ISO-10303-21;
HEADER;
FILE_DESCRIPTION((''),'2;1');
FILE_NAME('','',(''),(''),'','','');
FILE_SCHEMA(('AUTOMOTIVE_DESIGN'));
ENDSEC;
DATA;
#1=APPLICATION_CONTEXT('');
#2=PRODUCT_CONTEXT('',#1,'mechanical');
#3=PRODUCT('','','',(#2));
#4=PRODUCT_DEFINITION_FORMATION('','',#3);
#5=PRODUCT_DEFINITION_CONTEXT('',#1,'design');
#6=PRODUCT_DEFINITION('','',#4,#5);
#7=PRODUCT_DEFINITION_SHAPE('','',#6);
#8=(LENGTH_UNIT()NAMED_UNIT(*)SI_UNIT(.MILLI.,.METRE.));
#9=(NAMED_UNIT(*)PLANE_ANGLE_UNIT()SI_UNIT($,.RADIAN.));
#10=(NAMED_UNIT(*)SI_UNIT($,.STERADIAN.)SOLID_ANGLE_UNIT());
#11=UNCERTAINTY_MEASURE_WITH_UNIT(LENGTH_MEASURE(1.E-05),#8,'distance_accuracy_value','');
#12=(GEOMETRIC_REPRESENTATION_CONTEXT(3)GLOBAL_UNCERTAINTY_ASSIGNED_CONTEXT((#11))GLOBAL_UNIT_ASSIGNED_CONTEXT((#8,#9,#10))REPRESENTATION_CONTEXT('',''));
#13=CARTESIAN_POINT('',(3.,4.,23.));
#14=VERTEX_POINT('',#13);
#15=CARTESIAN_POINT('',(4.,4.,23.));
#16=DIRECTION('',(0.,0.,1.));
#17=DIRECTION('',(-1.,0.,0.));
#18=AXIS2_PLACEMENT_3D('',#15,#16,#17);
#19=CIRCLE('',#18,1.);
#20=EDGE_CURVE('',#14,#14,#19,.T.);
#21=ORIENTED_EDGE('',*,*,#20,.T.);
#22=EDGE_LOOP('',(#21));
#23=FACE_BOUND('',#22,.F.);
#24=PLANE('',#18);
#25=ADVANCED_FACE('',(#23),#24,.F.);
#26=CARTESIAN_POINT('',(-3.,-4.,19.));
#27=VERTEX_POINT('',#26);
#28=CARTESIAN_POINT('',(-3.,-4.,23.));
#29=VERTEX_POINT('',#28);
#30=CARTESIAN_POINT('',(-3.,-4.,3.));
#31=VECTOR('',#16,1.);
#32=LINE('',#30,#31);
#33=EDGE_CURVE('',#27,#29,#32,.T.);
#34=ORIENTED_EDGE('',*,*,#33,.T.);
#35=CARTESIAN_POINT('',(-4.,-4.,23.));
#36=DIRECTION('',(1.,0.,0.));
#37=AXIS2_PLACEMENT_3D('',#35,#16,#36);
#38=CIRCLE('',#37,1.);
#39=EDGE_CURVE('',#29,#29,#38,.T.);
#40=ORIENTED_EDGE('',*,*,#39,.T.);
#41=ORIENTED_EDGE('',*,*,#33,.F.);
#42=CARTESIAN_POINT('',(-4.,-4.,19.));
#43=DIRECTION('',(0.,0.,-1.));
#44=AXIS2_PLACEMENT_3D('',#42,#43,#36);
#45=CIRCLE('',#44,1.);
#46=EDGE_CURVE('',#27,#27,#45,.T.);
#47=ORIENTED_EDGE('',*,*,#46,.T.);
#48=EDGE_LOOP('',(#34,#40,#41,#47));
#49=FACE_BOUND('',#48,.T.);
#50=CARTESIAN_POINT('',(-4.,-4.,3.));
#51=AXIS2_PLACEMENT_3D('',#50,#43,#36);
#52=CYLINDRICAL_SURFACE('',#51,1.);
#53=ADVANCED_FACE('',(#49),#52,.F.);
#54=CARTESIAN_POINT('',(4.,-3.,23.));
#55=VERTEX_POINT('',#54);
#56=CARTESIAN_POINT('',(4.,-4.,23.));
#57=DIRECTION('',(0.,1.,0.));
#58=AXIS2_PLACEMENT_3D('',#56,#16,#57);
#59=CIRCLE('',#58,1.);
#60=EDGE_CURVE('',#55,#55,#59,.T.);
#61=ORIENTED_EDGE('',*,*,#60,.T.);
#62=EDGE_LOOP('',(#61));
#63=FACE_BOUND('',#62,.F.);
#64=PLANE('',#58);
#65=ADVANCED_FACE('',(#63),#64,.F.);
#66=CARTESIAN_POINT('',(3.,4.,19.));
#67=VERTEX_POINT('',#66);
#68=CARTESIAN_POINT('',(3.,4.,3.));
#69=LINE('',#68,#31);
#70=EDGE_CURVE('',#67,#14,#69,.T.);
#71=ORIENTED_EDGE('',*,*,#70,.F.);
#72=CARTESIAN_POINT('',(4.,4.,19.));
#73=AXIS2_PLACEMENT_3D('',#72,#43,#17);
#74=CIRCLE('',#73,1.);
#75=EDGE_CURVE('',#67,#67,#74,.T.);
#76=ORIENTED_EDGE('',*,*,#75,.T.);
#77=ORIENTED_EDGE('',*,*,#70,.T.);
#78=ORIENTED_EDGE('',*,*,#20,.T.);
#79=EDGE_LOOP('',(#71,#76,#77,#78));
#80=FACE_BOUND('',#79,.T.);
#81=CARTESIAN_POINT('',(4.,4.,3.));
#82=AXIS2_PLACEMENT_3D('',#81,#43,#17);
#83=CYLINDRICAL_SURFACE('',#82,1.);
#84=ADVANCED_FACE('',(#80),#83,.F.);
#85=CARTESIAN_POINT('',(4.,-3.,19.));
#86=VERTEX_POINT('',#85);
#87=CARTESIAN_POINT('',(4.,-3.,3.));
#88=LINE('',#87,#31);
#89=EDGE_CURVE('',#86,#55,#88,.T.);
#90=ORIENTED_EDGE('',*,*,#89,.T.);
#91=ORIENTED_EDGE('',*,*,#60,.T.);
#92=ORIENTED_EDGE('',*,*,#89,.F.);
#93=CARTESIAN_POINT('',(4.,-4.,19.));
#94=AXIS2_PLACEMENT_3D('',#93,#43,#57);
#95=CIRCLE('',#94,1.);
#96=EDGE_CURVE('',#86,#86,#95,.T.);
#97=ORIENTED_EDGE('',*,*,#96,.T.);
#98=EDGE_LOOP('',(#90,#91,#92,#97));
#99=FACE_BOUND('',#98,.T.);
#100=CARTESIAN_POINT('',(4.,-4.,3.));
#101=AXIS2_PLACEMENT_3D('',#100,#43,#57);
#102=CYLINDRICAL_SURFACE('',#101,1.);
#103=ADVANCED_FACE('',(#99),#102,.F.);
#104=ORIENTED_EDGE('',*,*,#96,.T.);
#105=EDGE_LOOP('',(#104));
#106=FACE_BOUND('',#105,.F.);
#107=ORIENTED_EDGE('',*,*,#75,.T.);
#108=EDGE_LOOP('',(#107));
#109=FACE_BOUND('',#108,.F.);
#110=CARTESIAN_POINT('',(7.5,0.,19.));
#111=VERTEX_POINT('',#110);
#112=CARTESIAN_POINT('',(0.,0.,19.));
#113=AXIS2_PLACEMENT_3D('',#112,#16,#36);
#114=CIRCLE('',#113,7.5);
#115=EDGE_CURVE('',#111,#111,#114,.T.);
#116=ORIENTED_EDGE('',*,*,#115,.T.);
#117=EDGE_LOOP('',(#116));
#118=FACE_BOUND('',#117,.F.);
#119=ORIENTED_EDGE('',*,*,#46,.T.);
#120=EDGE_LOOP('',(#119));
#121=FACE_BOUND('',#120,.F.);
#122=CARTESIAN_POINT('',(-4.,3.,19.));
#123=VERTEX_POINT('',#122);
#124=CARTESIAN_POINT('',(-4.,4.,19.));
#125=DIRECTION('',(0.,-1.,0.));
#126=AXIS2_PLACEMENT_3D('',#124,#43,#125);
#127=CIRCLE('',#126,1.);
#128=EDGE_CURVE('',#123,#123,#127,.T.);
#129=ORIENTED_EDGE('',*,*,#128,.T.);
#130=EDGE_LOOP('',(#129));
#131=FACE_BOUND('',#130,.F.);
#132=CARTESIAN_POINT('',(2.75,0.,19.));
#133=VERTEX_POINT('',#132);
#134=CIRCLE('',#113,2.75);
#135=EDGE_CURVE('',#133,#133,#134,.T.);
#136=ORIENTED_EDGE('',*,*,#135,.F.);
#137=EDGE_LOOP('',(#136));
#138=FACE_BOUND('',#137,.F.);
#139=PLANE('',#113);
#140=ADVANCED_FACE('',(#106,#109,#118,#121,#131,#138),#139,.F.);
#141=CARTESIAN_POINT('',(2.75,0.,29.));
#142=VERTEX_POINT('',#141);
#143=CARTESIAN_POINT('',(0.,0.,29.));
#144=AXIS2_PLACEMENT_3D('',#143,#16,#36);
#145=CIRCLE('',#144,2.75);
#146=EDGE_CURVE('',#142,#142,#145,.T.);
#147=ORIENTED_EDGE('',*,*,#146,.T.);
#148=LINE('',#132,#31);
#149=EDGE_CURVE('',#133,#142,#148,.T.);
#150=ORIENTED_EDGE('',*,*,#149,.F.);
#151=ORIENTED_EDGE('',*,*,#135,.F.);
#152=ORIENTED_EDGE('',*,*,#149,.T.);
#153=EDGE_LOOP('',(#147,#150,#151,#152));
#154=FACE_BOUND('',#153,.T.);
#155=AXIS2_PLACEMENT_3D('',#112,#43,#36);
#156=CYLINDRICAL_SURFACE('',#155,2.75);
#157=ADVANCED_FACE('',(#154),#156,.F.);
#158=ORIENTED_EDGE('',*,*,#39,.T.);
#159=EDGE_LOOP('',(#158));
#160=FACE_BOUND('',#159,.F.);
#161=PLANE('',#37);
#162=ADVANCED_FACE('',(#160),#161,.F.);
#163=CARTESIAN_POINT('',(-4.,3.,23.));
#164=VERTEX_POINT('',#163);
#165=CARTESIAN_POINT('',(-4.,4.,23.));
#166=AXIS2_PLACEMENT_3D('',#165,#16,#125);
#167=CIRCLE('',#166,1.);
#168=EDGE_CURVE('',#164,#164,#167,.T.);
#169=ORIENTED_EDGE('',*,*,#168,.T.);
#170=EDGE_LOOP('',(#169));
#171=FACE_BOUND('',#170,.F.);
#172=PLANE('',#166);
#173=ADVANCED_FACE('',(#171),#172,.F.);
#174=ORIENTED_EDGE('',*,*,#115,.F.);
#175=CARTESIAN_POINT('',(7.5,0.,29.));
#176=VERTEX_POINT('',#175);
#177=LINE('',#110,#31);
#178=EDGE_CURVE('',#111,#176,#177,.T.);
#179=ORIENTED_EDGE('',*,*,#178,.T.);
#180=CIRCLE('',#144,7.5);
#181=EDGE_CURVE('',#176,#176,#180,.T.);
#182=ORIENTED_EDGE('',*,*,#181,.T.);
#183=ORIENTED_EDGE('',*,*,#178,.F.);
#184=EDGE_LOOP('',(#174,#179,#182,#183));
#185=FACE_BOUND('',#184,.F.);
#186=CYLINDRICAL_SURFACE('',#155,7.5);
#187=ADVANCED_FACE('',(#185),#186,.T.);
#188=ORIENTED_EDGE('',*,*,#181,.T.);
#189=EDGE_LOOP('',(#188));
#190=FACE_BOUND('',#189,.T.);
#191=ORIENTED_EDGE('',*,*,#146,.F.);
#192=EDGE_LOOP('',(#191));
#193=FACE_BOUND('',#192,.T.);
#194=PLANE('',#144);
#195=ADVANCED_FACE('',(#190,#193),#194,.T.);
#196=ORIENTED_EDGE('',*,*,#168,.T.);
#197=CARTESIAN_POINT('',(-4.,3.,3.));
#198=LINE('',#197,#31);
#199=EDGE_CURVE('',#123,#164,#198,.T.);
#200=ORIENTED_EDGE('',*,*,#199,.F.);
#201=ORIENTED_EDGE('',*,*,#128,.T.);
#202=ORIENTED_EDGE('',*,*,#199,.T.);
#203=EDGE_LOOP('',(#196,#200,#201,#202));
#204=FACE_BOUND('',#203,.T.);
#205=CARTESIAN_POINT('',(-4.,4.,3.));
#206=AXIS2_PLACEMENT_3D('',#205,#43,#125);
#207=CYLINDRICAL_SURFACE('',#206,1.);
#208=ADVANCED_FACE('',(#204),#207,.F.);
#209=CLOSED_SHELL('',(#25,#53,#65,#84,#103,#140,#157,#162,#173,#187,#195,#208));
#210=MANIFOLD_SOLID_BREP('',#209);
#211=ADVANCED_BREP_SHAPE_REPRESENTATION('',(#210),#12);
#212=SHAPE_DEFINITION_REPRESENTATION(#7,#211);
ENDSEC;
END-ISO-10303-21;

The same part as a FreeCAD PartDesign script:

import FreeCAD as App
import Part
import Sketcher

doc = App.newDocument("Part")
body = doc.addObject("PartDesign::Body", "Body")

# Sketch on XY plane
sketch1 = body.newObject("Sketcher::SketchObject", "Sketch")
sketch1.AttachmentSupport = (doc.getObject("XY_Plane"), [""])
sketch1.MapMode = "FlatFace"
sketch1.AttachmentOffset = App.Placement(App.Vector(0, 0, -88), App.Rotation())
sketch1.addGeometry(Part.Circle(App.Vector(4, -4, 0), App.Vector(0, 0, 1), 1), False)
sketch1.addConstraint([
    Sketcher.Constraint("Diameter", 0, 2.0),
    Sketcher.Constraint("DistanceX", -1, 1, 0, 3, 4.0),
    Sketcher.Constraint("DistanceY", 0, 3, -1, 1, 4.0),
])
pad1 = body.newObject("PartDesign::Pad", "Pad")
pad1.Profile = sketch1
pad1.Length = 20
body2 = doc.addObject("PartDesign::Body", "Body001")

# Sketch on XY plane
sketch2 = body2.newObject("Sketcher::SketchObject", "Sketch001")
sketch2.AttachmentSupport = (doc.getObject("XY_Plane001"), [""])
sketch2.MapMode = "FlatFace"
sketch2.AttachmentOffset = App.Placement(App.Vector(0, 0, -88), App.Rotation())
sketch2.addGeometry(Part.Circle(App.Vector(4, 4, 0), App.Vector(0, 0, 1), 1), False)
sketch2.addConstraint([
    Sketcher.Constraint("Diameter", 0, 2.0),
    Sketcher.Constraint("DistanceX", -1, 1, 0, 3, 4.0),
    Sketcher.Constraint("DistanceY", -1, 1, 0, 3, 4.0),
])
pad2 = body2.newObject("PartDesign::Pad", "Pad001")
pad2.Profile = sketch2
pad2.Length = 20
body3 = doc.addObject("PartDesign::Body", "Body002")

# Sketch on XY plane
sketch3 = body3.newObject("Sketcher::SketchObject", "Sketch002")
sketch3.AttachmentSupport = (doc.getObject("XY_Plane002"), [""])
sketch3.MapMode = "FlatFace"
sketch3.AttachmentOffset = App.Placement(App.Vector(0, 0, -88), App.Rotation())
sketch3.addGeometry(Part.Circle(App.Vector(-4, 4, 0), App.Vector(0, 0, 1), 1), False)
sketch3.addConstraint([
    Sketcher.Constraint("Diameter", 0, 2.0),
    Sketcher.Constraint("DistanceX", 0, 3, -1, 1, 4.0),
    Sketcher.Constraint("DistanceY", -1, 1, 0, 3, 4.0),
])
pad3 = body3.newObject("PartDesign::Pad", "Pad002")
pad3.Profile = sketch3
pad3.Length = 20
body4 = doc.addObject("PartDesign::Body", "Body003")
body4.AllowCompound = True

# Sketch on XY plane
sketch4 = body4.newObject("Sketcher::SketchObject", "Sketch003")
sketch4.AttachmentSupport = (doc.getObject("XY_Plane003"), [""])
sketch4.MapMode = "FlatFace"
sketch4.AttachmentOffset = App.Placement(App.Vector(0, 0, -88), App.Rotation())
sketch4.addGeometry(Part.Circle(App.Vector(-4, -4, 0), App.Vector(0, 0, 1), 1), False)
sketch4.addConstraint([
    Sketcher.Constraint("Diameter", 0, 2.0),
    Sketcher.Constraint("DistanceX", 0, 3, -1, 1, 4.0),
    Sketcher.Constraint("DistanceY", 0, 3, -1, 1, 4.0),
])
pad4 = body4.newObject("PartDesign::Pad", "Pad003")
pad4.Profile = sketch4
pad4.Length = 20
doc.recompute()

boolean = body4.newObject("PartDesign::Boolean", "Boolean")
boolean.Type = "Fuse"
boolean.addObjects([body])
doc.recompute()

boolean2 = body4.newObject("PartDesign::Boolean", "Boolean001")
boolean2.Type = "Fuse"
boolean2.addObjects([body2])
doc.recompute()

boolean3 = body4.newObject("PartDesign::Boolean", "Boolean002")
boolean3.Type = "Fuse"
boolean3.addObjects([body3])
body5 = doc.addObject("PartDesign::Body", "Body004")
body5.AllowCompound = True
doc.recompute()

body4.Placement = App.Placement(App.Vector(0, 0, 91), App.Rotation(App.Vector(0, 0, 1), 0))
boolean4 = body5.newObject("PartDesign::Boolean", "Boolean003")
boolean4.Type = "Fuse"
boolean4.addObjects([body4])
body6 = doc.addObject("PartDesign::Body", "Body005")

# Sketch on XY plane
sketch5 = body6.newObject("Sketcher::SketchObject", "Sketch004")
sketch5.AttachmentSupport = (doc.getObject("XY_Plane005"), [""])
sketch5.MapMode = "FlatFace"
sketch5.AttachmentOffset = App.Placement(App.Vector(0, 0, 19), App.Rotation())
sketch5.addGeometry([
    Part.Circle(App.Vector(0, 0, 0), App.Vector(0, 0, 1), 7.5),
    Part.Circle(App.Vector(0, 0, 0), App.Vector(0, 0, 1), 2.8),
], False)
sketch5.addConstraint([
    Sketcher.Constraint("Coincident", 0, 3, -1, 1),
    Sketcher.Constraint("Coincident", 1, 3, -1, 1),
    Sketcher.Constraint("Diameter", 0, 15.0),
    Sketcher.Constraint("Diameter", 1, 5.5),
])
pad5 = body6.newObject("PartDesign::Pad", "Pad004")
pad5.Profile = sketch5
pad5.Length = 10
doc.recompute()

boolean5 = body6.newObject("PartDesign::Boolean", "Boolean004")
boolean5.Type = "Cut"
boolean5.addObjects([body5])

doc.recompute()
